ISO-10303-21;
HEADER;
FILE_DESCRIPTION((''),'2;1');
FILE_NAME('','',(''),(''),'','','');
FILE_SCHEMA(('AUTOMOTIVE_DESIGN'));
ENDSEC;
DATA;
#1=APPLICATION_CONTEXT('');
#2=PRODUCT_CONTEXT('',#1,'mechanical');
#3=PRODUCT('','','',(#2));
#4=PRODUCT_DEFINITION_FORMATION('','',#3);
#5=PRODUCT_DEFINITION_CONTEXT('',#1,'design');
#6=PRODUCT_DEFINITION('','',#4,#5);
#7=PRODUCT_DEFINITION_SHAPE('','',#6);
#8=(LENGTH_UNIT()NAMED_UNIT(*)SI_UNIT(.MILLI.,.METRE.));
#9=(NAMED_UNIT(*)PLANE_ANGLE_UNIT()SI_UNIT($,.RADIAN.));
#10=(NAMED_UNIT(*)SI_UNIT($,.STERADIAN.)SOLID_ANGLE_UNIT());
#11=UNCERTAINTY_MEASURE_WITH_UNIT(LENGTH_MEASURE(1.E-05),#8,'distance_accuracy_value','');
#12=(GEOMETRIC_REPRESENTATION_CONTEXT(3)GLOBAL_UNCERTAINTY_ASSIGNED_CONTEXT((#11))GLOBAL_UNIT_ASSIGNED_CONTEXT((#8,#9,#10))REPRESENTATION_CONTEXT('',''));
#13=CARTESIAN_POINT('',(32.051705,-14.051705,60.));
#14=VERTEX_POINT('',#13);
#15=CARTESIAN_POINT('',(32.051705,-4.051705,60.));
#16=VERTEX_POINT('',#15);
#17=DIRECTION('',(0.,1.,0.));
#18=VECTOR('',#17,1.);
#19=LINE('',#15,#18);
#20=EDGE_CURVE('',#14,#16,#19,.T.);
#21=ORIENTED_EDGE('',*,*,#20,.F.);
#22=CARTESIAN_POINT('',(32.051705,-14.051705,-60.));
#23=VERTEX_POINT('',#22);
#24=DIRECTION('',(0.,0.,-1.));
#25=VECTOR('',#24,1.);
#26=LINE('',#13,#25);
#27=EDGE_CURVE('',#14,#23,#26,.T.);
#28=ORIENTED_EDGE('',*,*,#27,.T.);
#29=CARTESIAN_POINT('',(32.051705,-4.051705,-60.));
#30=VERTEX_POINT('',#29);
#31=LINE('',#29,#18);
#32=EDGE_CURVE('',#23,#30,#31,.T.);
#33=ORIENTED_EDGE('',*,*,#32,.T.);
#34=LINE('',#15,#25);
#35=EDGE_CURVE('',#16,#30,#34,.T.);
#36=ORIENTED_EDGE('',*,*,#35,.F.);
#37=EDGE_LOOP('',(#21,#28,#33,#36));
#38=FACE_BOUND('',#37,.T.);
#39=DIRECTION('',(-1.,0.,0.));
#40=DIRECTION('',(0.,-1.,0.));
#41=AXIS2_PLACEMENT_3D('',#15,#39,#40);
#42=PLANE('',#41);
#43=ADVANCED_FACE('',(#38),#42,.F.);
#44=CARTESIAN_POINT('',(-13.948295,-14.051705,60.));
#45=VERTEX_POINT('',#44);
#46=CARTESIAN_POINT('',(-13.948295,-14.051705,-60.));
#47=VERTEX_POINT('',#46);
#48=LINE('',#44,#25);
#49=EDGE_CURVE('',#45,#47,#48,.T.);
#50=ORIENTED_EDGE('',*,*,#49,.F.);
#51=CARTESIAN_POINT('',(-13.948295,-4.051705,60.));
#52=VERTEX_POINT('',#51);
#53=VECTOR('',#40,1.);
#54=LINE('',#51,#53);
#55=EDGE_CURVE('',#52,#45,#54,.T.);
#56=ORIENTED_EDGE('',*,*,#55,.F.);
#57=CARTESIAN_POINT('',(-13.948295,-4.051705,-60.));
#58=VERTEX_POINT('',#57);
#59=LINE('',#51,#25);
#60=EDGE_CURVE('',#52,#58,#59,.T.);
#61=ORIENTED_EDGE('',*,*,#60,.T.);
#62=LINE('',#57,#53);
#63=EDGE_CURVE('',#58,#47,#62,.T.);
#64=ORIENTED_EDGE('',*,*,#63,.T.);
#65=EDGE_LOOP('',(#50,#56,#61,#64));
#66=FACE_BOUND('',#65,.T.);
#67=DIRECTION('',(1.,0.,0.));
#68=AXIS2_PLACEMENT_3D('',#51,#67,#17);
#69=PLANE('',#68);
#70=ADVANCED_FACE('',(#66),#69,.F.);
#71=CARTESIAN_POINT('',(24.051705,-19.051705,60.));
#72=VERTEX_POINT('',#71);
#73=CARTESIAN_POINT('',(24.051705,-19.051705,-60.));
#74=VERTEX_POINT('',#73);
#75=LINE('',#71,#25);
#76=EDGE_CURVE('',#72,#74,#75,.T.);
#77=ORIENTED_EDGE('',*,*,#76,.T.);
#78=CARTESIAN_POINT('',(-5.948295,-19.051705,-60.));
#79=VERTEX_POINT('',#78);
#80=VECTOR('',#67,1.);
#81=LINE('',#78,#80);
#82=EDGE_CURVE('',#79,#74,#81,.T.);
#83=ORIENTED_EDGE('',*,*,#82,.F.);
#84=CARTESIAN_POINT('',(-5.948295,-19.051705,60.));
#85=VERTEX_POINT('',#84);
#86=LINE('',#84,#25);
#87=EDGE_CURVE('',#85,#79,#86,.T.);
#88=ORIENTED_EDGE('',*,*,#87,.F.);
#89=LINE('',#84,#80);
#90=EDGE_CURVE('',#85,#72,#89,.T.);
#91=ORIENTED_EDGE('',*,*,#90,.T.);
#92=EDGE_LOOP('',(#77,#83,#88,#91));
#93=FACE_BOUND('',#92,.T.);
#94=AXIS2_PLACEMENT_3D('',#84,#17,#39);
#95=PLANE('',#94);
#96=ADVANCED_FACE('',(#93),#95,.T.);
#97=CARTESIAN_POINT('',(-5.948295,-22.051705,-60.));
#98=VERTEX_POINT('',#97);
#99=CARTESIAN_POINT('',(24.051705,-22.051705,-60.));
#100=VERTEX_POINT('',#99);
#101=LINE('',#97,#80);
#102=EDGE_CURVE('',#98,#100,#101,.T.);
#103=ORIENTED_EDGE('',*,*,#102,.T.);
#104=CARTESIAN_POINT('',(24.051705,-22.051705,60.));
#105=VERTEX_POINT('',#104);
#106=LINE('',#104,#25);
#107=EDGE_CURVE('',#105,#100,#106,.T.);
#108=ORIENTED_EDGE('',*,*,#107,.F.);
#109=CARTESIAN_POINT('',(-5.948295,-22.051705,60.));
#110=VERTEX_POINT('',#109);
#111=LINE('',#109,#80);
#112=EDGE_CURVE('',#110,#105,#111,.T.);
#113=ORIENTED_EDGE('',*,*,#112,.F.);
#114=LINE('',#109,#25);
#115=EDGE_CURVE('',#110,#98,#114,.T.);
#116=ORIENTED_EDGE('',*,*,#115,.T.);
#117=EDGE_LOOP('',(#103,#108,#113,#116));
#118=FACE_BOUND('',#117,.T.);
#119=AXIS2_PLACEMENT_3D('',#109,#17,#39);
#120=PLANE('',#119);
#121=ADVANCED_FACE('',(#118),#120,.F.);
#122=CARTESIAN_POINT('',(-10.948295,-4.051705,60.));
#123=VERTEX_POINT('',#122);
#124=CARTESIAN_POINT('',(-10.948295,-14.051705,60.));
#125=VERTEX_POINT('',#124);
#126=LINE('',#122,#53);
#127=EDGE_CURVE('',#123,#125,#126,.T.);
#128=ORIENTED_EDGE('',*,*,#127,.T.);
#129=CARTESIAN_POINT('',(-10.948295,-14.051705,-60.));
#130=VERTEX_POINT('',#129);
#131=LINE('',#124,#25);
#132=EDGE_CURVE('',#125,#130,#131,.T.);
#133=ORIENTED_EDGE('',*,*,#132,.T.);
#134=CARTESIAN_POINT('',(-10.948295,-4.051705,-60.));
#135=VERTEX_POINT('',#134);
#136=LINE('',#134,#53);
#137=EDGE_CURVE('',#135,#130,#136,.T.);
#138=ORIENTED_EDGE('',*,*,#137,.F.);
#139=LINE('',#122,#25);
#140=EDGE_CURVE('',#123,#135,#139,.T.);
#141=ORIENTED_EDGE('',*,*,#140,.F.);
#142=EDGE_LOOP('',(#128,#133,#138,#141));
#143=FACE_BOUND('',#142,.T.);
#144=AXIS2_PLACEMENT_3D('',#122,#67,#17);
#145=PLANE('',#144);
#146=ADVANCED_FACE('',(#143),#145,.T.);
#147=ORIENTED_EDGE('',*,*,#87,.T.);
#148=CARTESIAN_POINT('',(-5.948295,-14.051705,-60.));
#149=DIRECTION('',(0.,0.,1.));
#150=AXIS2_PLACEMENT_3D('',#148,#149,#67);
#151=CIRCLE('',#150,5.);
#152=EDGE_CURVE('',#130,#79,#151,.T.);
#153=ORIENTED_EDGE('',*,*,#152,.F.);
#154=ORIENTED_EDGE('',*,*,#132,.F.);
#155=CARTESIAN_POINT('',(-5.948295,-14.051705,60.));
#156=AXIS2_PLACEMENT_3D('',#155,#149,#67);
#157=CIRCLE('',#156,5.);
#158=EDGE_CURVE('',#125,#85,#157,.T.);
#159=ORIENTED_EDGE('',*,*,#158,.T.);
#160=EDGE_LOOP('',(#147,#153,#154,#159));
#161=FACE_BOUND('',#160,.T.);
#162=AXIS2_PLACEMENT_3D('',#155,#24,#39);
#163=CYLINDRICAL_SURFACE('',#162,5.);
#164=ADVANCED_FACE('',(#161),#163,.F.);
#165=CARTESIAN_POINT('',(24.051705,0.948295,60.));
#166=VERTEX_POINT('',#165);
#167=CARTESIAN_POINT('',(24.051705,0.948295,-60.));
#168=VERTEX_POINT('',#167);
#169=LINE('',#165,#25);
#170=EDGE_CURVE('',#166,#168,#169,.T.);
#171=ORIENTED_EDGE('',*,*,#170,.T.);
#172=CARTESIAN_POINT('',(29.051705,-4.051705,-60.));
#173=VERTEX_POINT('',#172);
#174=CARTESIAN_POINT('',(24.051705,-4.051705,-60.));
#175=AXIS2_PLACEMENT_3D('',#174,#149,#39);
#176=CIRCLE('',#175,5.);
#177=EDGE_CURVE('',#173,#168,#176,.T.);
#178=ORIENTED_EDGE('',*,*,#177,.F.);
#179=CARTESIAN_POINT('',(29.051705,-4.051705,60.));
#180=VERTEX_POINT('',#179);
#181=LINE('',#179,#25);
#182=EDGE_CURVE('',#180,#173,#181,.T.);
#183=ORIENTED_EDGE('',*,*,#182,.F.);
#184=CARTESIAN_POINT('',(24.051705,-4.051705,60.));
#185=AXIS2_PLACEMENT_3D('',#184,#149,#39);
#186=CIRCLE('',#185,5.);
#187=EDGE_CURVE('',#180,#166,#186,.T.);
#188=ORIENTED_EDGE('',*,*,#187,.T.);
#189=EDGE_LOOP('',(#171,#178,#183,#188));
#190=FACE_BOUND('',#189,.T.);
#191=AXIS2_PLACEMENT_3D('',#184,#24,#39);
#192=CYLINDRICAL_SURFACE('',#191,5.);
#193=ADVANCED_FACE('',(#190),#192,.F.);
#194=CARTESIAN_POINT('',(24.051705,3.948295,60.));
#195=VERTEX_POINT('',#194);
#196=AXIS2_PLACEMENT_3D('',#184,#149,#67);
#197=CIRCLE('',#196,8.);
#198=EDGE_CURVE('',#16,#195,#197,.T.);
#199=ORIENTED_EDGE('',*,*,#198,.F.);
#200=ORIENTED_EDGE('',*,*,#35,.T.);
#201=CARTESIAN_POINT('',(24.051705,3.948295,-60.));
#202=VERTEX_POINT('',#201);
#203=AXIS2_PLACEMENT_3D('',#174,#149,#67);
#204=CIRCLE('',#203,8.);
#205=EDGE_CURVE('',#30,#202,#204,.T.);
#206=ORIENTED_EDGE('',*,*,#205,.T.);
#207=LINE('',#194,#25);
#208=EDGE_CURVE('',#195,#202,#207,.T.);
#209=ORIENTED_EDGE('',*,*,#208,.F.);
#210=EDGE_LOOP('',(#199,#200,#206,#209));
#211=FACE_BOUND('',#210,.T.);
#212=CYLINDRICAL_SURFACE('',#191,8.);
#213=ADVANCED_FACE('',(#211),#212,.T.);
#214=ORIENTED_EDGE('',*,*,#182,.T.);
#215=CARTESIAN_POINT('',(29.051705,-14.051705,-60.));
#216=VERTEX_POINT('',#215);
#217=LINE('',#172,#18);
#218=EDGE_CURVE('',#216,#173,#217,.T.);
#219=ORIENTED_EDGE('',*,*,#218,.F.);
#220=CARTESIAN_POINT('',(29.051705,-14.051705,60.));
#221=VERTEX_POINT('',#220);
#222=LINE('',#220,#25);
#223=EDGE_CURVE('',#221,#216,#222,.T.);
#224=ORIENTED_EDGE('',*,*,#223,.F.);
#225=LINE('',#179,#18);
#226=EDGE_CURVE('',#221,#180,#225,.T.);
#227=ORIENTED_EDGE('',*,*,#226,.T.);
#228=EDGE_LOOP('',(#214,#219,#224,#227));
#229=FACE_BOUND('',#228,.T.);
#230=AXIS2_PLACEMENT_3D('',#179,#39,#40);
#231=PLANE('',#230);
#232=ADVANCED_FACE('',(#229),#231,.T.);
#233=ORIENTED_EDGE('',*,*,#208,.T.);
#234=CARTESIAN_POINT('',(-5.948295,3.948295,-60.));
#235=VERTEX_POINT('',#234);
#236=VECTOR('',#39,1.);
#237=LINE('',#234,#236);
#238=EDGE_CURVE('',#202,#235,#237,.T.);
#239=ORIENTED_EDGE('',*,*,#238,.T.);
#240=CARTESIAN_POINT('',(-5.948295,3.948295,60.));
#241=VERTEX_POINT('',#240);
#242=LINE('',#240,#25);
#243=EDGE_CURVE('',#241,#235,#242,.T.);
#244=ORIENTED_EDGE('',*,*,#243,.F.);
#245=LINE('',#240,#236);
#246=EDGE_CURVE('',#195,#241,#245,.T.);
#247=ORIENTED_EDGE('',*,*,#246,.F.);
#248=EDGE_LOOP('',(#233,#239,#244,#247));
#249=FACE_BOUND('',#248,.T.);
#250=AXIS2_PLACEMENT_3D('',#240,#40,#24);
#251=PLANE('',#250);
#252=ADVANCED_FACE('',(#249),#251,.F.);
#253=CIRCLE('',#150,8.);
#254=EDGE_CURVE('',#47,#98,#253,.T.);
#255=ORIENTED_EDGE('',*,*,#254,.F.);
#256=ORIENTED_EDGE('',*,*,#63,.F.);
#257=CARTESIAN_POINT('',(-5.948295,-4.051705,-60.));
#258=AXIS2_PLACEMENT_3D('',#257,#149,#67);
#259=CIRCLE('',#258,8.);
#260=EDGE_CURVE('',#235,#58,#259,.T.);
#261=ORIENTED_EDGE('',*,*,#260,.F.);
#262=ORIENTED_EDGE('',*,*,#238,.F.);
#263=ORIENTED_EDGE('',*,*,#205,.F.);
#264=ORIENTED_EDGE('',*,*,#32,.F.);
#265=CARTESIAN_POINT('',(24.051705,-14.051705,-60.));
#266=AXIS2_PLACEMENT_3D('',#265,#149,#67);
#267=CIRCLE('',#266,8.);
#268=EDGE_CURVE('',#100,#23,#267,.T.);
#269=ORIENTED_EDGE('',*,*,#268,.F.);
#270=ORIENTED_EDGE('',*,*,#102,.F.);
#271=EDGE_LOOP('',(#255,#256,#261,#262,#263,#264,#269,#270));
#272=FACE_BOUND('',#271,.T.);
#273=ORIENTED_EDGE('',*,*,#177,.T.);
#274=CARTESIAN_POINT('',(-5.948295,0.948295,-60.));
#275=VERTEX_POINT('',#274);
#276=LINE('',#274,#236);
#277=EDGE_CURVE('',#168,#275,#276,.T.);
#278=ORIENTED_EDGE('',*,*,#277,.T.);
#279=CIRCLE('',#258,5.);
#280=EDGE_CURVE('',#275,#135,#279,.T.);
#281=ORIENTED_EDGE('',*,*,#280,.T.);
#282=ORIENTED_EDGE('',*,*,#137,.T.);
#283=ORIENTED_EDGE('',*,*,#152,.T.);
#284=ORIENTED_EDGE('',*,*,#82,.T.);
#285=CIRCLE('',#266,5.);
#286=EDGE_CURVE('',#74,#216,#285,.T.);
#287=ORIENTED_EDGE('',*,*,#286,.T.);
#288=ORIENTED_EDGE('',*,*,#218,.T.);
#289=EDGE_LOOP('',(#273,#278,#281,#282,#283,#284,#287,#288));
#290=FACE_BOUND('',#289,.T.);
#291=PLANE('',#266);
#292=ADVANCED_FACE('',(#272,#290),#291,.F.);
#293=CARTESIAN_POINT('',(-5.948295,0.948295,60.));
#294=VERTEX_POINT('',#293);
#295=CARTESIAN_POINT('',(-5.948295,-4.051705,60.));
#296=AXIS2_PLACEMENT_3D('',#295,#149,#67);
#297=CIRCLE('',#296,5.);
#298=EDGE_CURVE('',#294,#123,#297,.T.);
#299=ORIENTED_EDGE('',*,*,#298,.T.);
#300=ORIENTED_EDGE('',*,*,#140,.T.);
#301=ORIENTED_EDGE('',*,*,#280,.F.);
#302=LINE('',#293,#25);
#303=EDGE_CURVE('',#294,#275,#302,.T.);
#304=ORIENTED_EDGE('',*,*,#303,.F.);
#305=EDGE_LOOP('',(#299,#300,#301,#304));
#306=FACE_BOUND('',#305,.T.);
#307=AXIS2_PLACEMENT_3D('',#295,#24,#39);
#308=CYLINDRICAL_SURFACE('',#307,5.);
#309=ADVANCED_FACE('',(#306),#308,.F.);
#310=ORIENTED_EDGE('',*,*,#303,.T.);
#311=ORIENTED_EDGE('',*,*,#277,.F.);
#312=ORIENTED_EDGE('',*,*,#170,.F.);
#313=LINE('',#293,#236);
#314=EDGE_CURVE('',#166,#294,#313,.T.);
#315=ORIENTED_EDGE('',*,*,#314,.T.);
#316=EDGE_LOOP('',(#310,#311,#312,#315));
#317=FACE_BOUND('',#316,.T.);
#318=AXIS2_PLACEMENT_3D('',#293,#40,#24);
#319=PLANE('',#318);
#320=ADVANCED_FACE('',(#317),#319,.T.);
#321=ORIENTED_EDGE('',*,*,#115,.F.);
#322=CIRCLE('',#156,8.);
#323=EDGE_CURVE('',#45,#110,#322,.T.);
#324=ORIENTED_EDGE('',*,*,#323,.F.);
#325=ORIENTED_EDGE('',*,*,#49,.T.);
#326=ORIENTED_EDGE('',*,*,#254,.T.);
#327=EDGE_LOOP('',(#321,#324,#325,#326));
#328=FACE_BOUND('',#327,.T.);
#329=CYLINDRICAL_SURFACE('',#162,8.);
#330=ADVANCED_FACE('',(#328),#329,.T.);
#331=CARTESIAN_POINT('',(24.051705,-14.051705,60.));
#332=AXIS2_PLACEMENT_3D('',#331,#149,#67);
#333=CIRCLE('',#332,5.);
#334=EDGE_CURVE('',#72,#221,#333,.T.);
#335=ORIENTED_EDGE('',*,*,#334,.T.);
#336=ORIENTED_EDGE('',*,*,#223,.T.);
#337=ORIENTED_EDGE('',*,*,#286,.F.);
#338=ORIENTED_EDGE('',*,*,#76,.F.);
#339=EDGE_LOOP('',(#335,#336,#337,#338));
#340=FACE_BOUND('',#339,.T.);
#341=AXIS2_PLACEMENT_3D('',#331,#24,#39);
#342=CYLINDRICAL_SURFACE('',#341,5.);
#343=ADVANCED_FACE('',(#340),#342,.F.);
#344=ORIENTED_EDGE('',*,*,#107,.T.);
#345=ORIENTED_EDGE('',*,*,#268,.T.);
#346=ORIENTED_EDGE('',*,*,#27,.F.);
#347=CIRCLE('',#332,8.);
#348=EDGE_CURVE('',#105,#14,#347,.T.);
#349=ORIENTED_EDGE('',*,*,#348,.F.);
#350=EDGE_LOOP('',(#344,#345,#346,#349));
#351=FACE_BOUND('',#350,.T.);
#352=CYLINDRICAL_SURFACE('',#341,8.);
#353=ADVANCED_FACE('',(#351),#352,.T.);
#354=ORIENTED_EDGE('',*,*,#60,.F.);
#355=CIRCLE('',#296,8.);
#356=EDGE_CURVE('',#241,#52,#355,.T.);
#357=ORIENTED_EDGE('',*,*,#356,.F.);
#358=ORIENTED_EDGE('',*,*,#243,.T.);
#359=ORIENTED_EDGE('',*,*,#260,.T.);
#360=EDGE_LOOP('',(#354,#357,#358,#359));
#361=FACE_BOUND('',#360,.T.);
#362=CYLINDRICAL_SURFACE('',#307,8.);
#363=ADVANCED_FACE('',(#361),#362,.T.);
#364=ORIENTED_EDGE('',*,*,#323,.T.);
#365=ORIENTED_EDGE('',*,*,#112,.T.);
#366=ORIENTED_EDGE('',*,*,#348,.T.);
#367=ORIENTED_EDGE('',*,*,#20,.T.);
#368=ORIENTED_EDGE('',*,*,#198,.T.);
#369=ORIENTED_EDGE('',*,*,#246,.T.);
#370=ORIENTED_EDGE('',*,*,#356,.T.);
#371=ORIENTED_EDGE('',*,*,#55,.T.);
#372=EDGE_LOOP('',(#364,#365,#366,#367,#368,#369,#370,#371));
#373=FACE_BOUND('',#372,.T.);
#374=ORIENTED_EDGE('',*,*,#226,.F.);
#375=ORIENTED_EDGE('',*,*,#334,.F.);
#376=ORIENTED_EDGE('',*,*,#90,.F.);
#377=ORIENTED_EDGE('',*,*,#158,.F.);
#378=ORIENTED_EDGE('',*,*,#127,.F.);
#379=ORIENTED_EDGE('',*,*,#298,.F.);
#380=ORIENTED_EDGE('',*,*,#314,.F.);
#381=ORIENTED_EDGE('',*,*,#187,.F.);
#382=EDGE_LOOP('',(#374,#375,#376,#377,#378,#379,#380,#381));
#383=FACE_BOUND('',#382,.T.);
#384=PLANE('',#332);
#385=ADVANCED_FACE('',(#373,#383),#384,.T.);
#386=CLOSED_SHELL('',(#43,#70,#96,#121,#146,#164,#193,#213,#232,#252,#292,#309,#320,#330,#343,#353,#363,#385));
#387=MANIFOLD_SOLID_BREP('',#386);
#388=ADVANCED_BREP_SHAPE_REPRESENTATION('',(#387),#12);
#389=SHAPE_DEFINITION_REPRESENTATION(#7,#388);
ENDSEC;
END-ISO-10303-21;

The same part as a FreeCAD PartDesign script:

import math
import FreeCAD as App
import Part
import Sketcher

doc = App.newDocument("Part")
body = doc.addObject("PartDesign::Body", "Body")

# Sketch on XY plane
sketch1 = doc.addObject("Sketcher::SketchObject", "Sketch")
body.addObject(sketch1)
sketch1.AttachmentSupport = (doc.XY_Plane, [""])
sketch1.MapMode = "FlatFace"
sketch1.addGeometry([
    Part.LineSegment(App.Vector(32, -14, 0), App.Vector(32, -4, 0)),  # 0
    Part.ArcOfCircle(Part.Circle(App.Vector(24, -4, 0), App.Vector(0, 0, 1), 8), math.radians(0), math.radians(90)),  # 1
    Part.LineSegment(App.Vector(24, 4, 0), App.Vector(-6, 4, 0)),  # 2
    Part.ArcOfCircle(Part.Circle(App.Vector(-6, -4, 0), App.Vector(0, 0, 1), 8), math.radians(90), math.radians(180)),  # 3
    Part.LineSegment(App.Vector(-14, -4, 0), App.Vector(-14, -14, 0)),  # 4
    Part.ArcOfCircle(Part.Circle(App.Vector(-6, -14, 0), App.Vector(0, 0, 1), 8), math.radians(180), math.radians(270)),  # 5
    Part.LineSegment(App.Vector(-6, -22, 0), App.Vector(24, -22, 0)),  # 6
    Part.ArcOfCircle(Part.Circle(App.Vector(24, -14, 0), App.Vector(0, 0, 1), 8), math.radians(-90), math.radians(0)),  # 7
    Part.LineSegment(App.Vector(29, -4, 0), App.Vector(29, -14, 0)),  # 8
    Part.ArcOfCircle(Part.Circle(App.Vector(24, -14, 0), App.Vector(0, 0, 1), 5), math.radians(-90), math.radians(0)),  # 9
    Part.LineSegment(App.Vector(24, -19, 0), App.Vector(-6, -19, 0)),  # 10
    Part.ArcOfCircle(Part.Circle(App.Vector(-6, -14, 0), App.Vector(0, 0, 1), 5), math.radians(180), math.radians(270)),  # 11
    Part.LineSegment(App.Vector(-11, -14, 0), App.Vector(-11, -4, 0)),  # 12
    Part.ArcOfCircle(Part.Circle(App.Vector(-6, -4, 0), App.Vector(0, 0, 1), 5), math.radians(90), math.radians(180)),  # 13
    Part.LineSegment(App.Vector(-6, 1, 0), App.Vector(24, 1, 0)),  # 14
    Part.ArcOfCircle(Part.Circle(App.Vector(24, -4, 0), App.Vector(0, 0, 1), 5), math.radians(0), math.radians(90)),  # 15
], False)
sketch1.addConstraint([
    Sketcher.Constraint("Tangent", 0, 2, 1, 1),
    Sketcher.Constraint("Tangent", 1, 2, 2, 1),
    Sketcher.Constraint("Tangent", 2, 2, 3, 1),
    Sketcher.Constraint("Tangent", 3, 2, 4, 1),
    Sketcher.Constraint("Tangent", 4, 2, 5, 1),
    Sketcher.Constraint("Tangent", 5, 2, 6, 1),
    Sketcher.Constraint("Tangent", 6, 2, 7, 1),
    Sketcher.Constraint("Tangent", 7, 2, 0, 1),
    Sketcher.Constraint("Tangent", 8, 2, 9, 2),
    Sketcher.Constraint("Tangent", 9, 1, 10, 1),
    Sketcher.Constraint("Tangent", 10, 2, 11, 2),
    Sketcher.Constraint("Tangent", 11, 1, 12, 1),
    Sketcher.Constraint("Tangent", 12, 2, 13, 2),
    Sketcher.Constraint("Tangent", 13, 1, 14, 1),
    Sketcher.Constraint("Tangent", 14, 2, 15, 2),
    Sketcher.Constraint("Tangent", 15, 1, 8, 1),
    Sketcher.Constraint("Vertical", 0),
    Sketcher.Constraint("Horizontal", 2),
    Sketcher.Constraint("Vertical", 4),
    Sketcher.Constraint("Horizontal", 6),
    Sketcher.Constraint("Vertical", 8),
    Sketcher.Constraint("Horizontal", 10),
    Sketcher.Constraint("Vertical", 12),
    Sketcher.Constraint("Horizontal", 14),
    Sketcher.Constraint("Coincident", 9, 3, 7, 3),
    Sketcher.Constraint("Coincident", 11, 3, 5, 3),
    Sketcher.Constraint("Coincident", 13, 3, 3, 3),
    Sketcher.Constraint("Equal", 1, 3),
    Sketcher.Constraint("Equal", 3, 5),
    Sketcher.Constraint("Equal", 5, 7),
    Sketcher.Constraint("Equal", 13, 15),
    Sketcher.Constraint("Radius", 1, 8.0),
    Sketcher.Constraint("Radius", 9, 5.0),
    Sketcher.Constraint("DistanceX", 2, 2, 2, 1, 30.0),
    Sketcher.Constraint("DistanceY", 0, 1, 0, 2, 10.0),
    Sketcher.Constraint("DistanceX", -1, 1, 1, 3, 24.051705),
    Sketcher.Constraint("DistanceY", 1, 3, -1, 1, 4.051705),
])
pad1 = doc.addObject("PartDesign::Pad", "Pad")
body.addObject(pad1)
pad1.Profile = sketch1
pad1.Length = 120
pad1.Midplane = True

doc.recompute()
